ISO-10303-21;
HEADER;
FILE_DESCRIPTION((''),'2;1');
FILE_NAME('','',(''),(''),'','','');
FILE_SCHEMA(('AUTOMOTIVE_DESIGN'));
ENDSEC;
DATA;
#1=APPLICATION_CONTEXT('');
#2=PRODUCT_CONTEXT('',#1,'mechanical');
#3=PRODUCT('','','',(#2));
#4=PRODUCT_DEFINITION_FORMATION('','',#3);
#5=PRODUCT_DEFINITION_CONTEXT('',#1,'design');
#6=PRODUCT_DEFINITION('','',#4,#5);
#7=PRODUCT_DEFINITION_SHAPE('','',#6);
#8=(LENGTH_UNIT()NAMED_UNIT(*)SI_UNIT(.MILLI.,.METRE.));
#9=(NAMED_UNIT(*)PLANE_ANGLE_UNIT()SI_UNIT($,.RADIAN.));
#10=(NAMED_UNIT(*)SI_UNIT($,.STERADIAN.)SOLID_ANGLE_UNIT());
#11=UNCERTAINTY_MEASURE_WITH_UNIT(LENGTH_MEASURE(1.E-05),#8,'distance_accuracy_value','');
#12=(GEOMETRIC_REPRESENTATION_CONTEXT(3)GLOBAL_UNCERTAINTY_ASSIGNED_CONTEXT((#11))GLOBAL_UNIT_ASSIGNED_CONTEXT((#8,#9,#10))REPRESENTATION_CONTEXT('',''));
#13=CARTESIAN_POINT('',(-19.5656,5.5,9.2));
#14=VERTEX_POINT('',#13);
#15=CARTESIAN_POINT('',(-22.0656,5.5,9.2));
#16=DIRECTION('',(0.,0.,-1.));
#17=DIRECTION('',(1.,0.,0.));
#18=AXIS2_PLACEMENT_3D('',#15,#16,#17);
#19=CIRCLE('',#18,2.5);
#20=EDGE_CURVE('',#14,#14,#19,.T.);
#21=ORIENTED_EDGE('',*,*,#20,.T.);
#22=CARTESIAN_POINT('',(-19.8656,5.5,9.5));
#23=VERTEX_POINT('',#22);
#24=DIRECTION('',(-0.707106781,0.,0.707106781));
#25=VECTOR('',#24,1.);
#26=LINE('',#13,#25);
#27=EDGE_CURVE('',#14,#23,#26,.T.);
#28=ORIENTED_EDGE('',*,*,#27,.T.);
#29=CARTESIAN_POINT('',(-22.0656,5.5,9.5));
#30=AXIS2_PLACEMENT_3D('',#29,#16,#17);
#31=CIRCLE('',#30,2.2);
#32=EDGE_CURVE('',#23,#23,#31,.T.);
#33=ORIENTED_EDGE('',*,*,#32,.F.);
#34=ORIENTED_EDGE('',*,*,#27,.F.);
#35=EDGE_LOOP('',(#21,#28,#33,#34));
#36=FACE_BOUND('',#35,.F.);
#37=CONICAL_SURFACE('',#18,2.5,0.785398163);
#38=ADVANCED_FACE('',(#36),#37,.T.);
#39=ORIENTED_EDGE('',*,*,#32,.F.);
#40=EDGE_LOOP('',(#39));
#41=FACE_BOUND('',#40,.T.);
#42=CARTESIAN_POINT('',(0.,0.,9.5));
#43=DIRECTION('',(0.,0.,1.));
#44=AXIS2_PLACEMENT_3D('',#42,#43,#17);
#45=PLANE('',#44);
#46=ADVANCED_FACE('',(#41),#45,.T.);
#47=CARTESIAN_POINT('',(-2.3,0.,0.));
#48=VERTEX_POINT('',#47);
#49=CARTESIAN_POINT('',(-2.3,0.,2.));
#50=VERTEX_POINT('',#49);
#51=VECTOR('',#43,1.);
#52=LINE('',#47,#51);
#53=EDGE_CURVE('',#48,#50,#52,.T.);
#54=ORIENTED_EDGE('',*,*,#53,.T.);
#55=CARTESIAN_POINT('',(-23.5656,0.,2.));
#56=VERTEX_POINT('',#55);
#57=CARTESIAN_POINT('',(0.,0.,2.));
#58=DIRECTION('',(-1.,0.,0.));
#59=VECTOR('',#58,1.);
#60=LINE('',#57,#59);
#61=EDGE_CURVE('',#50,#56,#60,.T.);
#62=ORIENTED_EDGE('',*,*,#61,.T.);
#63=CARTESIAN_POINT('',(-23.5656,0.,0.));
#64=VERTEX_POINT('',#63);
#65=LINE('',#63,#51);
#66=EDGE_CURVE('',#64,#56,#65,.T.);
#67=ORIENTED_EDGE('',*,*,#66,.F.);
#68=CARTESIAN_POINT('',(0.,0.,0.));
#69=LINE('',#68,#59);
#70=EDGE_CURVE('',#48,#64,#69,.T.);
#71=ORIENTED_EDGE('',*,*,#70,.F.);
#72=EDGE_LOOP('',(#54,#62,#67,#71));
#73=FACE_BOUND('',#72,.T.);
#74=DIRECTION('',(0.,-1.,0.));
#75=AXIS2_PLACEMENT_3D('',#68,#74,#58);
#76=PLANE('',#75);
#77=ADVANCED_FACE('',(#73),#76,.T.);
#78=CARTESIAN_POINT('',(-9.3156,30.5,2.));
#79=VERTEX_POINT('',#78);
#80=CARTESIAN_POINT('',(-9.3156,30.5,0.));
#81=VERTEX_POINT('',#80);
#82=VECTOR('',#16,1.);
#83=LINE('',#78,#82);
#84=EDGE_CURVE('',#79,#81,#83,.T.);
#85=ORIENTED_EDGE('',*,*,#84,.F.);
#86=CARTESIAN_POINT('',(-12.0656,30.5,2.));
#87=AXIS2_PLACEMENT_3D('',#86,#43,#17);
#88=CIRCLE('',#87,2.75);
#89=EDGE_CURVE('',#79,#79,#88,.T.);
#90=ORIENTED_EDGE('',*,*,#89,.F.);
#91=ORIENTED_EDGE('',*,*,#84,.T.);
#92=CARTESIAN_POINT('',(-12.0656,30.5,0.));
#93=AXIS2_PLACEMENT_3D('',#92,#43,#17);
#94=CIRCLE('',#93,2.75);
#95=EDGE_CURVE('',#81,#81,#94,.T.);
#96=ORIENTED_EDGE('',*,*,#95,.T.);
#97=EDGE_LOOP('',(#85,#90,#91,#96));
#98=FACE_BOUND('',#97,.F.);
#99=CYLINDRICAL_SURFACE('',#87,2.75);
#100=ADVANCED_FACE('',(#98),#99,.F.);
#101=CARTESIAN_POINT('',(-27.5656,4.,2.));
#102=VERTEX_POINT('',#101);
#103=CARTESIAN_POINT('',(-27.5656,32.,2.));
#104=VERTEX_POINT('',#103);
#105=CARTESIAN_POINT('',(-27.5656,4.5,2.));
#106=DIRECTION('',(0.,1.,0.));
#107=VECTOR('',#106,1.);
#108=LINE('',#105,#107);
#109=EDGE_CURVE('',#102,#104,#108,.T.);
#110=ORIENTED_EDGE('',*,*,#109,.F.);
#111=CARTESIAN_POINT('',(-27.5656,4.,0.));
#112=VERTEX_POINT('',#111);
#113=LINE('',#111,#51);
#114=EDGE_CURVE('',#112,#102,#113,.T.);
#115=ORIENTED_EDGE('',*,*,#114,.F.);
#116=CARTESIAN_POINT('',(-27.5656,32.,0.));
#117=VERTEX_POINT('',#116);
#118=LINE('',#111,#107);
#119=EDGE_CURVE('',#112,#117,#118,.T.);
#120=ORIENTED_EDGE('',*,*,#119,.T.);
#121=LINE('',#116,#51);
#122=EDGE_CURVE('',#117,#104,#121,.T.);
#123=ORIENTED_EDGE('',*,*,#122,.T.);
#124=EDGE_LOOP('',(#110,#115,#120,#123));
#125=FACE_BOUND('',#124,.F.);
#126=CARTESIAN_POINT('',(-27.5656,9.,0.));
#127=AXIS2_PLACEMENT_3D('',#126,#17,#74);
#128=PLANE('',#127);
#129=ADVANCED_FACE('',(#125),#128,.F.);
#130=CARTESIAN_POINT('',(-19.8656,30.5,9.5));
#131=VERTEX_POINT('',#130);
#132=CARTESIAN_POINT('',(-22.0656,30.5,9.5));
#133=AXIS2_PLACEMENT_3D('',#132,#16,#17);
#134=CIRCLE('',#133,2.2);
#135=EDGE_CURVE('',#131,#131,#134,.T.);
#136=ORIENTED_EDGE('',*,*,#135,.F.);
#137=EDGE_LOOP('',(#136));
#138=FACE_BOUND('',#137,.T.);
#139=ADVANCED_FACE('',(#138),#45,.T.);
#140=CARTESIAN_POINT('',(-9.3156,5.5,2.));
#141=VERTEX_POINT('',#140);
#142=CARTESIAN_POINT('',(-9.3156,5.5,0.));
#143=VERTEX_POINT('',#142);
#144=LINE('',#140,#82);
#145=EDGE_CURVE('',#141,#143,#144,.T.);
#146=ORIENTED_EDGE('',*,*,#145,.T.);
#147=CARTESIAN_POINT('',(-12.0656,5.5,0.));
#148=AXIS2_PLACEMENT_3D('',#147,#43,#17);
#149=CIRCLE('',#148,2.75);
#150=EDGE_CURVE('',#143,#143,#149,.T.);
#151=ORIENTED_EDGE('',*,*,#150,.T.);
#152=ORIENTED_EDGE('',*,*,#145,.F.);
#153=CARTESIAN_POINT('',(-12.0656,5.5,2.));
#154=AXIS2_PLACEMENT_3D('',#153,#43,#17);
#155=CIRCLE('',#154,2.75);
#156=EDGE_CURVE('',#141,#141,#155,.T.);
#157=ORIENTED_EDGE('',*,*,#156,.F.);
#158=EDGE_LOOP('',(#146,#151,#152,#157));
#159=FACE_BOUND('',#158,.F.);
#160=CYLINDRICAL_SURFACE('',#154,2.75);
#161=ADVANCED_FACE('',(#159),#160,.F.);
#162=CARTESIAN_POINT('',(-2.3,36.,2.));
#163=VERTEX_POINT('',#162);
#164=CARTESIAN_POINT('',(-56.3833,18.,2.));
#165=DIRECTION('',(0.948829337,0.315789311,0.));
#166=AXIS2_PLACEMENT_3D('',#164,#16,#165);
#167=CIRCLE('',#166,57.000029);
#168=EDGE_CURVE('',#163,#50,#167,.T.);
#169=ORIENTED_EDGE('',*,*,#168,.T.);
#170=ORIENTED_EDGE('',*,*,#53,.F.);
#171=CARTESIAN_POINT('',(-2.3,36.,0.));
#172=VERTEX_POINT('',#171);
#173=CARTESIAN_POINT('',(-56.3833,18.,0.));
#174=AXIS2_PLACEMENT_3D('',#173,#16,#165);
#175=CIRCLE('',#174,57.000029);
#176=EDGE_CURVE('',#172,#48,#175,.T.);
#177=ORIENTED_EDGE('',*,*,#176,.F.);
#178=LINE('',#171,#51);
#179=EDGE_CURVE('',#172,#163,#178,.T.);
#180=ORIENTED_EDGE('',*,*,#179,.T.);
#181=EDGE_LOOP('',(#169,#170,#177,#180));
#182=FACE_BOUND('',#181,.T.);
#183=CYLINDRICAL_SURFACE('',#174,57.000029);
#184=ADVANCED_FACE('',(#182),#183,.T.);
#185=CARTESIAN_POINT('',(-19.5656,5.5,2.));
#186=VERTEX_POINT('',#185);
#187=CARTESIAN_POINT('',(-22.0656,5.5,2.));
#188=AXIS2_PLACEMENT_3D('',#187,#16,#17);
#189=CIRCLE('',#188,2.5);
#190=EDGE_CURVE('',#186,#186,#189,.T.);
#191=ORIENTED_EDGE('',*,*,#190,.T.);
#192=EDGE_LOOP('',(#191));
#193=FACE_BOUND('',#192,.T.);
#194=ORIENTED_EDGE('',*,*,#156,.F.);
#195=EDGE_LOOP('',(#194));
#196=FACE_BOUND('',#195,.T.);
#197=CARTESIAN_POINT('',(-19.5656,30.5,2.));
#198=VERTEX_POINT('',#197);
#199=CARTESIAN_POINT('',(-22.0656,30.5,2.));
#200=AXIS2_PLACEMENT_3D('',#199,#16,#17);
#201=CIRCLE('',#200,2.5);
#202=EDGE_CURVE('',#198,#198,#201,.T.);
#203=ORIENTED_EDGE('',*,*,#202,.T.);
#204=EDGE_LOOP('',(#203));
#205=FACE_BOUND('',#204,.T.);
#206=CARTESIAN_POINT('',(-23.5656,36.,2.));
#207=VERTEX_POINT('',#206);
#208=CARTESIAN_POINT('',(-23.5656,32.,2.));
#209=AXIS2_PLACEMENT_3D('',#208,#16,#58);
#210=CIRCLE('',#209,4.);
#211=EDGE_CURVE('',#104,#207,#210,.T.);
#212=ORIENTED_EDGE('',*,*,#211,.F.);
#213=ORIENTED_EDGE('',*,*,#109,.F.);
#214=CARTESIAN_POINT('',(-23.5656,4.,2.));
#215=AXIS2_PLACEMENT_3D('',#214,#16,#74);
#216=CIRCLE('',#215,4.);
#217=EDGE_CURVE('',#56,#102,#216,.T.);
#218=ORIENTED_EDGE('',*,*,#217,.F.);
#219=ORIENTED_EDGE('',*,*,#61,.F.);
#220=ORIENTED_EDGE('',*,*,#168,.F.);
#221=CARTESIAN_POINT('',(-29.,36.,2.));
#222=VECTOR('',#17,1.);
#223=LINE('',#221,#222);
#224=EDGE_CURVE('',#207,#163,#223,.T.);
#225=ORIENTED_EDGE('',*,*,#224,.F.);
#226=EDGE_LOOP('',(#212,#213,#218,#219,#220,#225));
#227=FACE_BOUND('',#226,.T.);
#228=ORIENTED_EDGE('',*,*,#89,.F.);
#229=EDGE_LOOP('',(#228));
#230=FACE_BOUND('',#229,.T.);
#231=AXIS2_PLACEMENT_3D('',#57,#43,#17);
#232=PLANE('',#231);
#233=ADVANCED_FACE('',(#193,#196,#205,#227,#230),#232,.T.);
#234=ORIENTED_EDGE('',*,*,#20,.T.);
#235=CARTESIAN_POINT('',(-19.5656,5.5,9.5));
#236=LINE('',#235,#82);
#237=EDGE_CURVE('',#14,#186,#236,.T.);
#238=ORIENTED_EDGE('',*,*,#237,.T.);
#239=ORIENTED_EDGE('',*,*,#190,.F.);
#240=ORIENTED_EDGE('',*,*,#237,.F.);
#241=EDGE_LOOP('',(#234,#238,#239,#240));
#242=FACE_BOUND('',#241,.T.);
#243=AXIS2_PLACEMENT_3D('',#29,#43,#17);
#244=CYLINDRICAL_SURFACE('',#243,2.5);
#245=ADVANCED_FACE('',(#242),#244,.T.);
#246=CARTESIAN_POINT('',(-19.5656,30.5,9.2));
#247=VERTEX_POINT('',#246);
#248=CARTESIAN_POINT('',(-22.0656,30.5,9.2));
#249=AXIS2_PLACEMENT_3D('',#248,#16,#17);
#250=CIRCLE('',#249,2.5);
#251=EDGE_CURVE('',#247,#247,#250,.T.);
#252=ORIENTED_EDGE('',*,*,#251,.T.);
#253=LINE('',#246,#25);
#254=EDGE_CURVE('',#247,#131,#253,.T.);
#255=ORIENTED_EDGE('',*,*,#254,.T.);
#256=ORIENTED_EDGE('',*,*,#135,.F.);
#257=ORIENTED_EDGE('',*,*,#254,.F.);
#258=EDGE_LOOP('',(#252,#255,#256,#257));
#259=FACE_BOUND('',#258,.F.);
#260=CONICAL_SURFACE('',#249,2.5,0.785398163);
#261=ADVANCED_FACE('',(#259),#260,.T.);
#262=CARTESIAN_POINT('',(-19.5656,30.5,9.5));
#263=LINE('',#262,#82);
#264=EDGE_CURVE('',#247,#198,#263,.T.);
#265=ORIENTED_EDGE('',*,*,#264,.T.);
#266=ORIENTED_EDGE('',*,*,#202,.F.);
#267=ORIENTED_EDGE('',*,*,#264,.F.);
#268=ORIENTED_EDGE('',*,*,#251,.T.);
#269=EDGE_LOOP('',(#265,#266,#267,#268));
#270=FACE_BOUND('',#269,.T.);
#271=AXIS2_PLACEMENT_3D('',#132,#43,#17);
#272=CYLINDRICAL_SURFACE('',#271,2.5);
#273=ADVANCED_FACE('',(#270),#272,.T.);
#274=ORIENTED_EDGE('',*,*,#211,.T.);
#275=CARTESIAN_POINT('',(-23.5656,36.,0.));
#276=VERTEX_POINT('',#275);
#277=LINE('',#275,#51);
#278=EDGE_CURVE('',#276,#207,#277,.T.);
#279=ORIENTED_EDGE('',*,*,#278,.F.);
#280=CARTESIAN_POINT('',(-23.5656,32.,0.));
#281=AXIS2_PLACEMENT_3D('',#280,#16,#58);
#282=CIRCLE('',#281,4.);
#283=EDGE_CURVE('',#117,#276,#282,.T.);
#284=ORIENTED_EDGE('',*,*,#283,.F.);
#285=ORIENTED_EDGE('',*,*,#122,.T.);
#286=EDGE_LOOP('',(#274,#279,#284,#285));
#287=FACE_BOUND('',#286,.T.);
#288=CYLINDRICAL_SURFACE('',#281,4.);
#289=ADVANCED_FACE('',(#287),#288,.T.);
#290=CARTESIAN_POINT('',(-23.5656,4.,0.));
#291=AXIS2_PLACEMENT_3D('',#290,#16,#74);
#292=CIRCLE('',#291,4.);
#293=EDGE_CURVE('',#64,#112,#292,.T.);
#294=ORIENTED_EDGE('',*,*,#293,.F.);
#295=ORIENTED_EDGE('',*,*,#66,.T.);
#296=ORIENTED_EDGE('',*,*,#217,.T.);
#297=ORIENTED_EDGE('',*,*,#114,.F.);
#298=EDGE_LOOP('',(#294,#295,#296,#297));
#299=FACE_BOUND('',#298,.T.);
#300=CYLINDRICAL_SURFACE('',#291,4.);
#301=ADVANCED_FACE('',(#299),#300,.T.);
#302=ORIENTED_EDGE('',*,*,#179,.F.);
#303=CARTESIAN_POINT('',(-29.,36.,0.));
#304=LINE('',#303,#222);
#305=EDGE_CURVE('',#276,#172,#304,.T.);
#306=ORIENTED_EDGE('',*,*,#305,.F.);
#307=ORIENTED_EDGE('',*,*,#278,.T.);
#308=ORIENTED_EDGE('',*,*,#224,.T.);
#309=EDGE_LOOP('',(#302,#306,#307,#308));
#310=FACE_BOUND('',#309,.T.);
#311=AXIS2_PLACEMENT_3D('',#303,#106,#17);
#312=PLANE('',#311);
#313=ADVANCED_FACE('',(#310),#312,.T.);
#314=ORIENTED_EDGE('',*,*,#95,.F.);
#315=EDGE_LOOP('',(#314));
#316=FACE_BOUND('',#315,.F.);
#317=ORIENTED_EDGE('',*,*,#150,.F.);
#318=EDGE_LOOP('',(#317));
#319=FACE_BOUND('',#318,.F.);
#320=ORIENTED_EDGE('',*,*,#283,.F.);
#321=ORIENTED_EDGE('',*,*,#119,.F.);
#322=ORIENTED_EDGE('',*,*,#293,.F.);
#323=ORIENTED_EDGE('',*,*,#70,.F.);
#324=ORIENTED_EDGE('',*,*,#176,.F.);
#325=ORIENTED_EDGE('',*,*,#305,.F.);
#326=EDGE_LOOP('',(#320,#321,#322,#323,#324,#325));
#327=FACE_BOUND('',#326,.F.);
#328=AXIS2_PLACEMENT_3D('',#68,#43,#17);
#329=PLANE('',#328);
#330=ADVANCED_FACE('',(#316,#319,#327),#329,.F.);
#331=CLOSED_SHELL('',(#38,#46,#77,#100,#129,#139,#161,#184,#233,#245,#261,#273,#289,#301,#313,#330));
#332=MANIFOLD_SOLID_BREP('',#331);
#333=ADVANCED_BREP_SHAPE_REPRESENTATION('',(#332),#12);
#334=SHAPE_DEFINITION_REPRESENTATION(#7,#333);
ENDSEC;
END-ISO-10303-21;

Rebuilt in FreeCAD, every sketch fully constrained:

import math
import FreeCAD as App
import Part
import Sketcher

V = App.Vector


def edges_at(feature, points):
    """Names of the edges that pass closest to the given points."""
    edges = feature.Shape.Edges
    near = lambda p: min(range(len(edges)), key=lambda i: edges[i].distToShape(Part.Vertex(*p))[0])
    return sorted({f"Edge{near(p) + 1}" for p in points})

doc = App.newDocument("Part")
params = doc.addObject("Spreadsheet::Sheet", "Params")
for row, (alias, value) in enumerate([
    ("sketch1_radius", "57 mm"),
    ("sketch1_width", "29 mm"),
    ("sketch1_width2", "5 mm"),
    ("sketch1_height", "36 mm"),
    ("pad1_length", "2 mm"),
    ("sketch2_width", "5 mm"),
    ("pad2_length", "9.5 mm"),
    ("fillet_radius", "4 mm"),
    ("sketch3_radius", "2.5 mm"),
    ("pad3_length", "2 mm"),
    ("sketch4_radius", "2.5 mm"),
    ("pocket1_length", "7.5 mm"),
    ("sketch5_diameter", "5.5 mm"),
    ("sketch5_diameter2", "5 mm"),
    ("chamfer_size", "0.3 mm"),
    ("sketch6_radius", "57 mm"),
    ("sketch6_width", "2.3 mm"),
    ("sketch6_radius2", "4 mm"),
    ("sketch6_height", "28 mm"),
], start=1):
    params.set(f"A{row}", alias)
    params.set(f"B{row}", "=" + value)
    params.setAlias(f"B{row}", alias)

body = doc.addObject("PartDesign::Body", "Body")

sketch1 = body.newObject("Sketcher::SketchObject", "Sketch")
sketch1.AttachmentSupport = (doc.getObject("XY_Plane"), [""])
sketch1.MapMode = "FlatFace"
sketch1.addGeometry([
    Part.LineSegment(V(-29, 0, 0), V(0, 0, 0)),
    Part.ArcOfCircle(Part.Circle(V(-54.0833, 18, 0), V(0, 0, 1), 57.000029), math.radians(-18.40847), math.radians(18.40847)),
    Part.LineSegment(V(0, 36, 0), V(-29, 36, 0)),
    Part.LineSegment(V(-29, 36, 0), V(-29, 0, 0)),
    Part.LineSegment(V(-24.5656, 3, 0), V(-24.5656, 8, 0)),
    Part.LineSegment(V(-24.5656, 8, 0), V(-19.5656, 8, 0)),
    Part.LineSegment(V(-19.5656, 8, 0), V(-19.5656, 3, 0)),
    Part.LineSegment(V(-19.5656, 3, 0), V(-24.5656, 3, 0)),
    Part.LineSegment(V(-24.5656, 28, 0), V(-24.5656, 33, 0)),
    Part.LineSegment(V(-24.5656, 33, 0), V(-19.5656, 33, 0)),
    Part.LineSegment(V(-19.5656, 33, 0), V(-19.5656, 28, 0)),
    Part.LineSegment(V(-19.5656, 28, 0), V(-24.5656, 28, 0)),
    Part.LineSegment(V(-14.5656, 3, 0), V(-14.5656, 8, 0)),
    Part.LineSegment(V(-14.5656, 8, 0), V(-9.5656, 8, 0)),
    Part.LineSegment(V(-9.5656, 8, 0), V(-9.5656, 3, 0)),
    Part.LineSegment(V(-9.5656, 3, 0), V(-14.5656, 3, 0)),
    Part.LineSegment(V(-14.5656, 28, 0), V(-14.5656, 33, 0)),
    Part.LineSegment(V(-14.5656, 33, 0), V(-9.5656, 33, 0)),
    Part.LineSegment(V(-9.5656, 33, 0), V(-9.5656, 28, 0)),
    Part.LineSegment(V(-9.5656, 28, 0), V(-14.5656, 28, 0)),
], False)
sketch1.addConstraint([
    Sketcher.Constraint("Coincident", 0, 2, 1, 1),
    Sketcher.Constraint("Coincident", 1, 2, 2, 1),
    Sketcher.Constraint("Coincident", 2, 2, 3, 1),
    Sketcher.Constraint("Coincident", 3, 2, 0, 1),
    Sketcher.Constraint("Coincident", 4, 2, 5, 1),
    Sketcher.Constraint("Coincident", 5, 2, 6, 1),
    Sketcher.Constraint("Coincident", 6, 2, 7, 1),
    Sketcher.Constraint("Coincident", 7, 2, 4, 1),
    Sketcher.Constraint("Coincident", 8, 2, 9, 1),
    Sketcher.Constraint("Coincident", 9, 2, 10, 1),
    Sketcher.Constraint("Coincident", 10, 2, 11, 1),
    Sketcher.Constraint("Coincident", 11, 2, 8, 1),
    Sketcher.Constraint("Coincident", 12, 2, 13, 1),
    Sketcher.Constraint("Coincident", 13, 2, 14, 1),
    Sketcher.Constraint("Coincident", 14, 2, 15, 1),
    Sketcher.Constraint("Coincident", 15, 2, 12, 1),
    Sketcher.Constraint("Coincident", 16, 2, 17, 1),
    Sketcher.Constraint("Coincident", 17, 2, 18, 1),
    Sketcher.Constraint("Coincident", 18, 2, 19, 1),
    Sketcher.Constraint("Coincident", 19, 2, 16, 1),
    Sketcher.Constraint("Horizontal", 0),
    Sketcher.Constraint("Horizontal", 2),
    Sketcher.Constraint("Vertical", 3),
    Sketcher.Constraint("Vertical", 4),
    Sketcher.Constraint("Horizontal", 5),
    Sketcher.Constraint("Vertical", 6),
    Sketcher.Constraint("Horizontal", 7),
    Sketcher.Constraint("Vertical", 8),
    Sketcher.Constraint("Horizontal", 9),
    Sketcher.Constraint("Vertical", 10),
    Sketcher.Constraint("Horizontal", 11),
    Sketcher.Constraint("Vertical", 12),
    Sketcher.Constraint("Horizontal", 13),
    Sketcher.Constraint("Vertical", 14),
    Sketcher.Constraint("Horizontal", 15),
    Sketcher.Constraint("Vertical", 16),
    Sketcher.Constraint("Horizontal", 17),
    Sketcher.Constraint("Vertical", 18),
    Sketcher.Constraint("Horizontal", 19),
    Sketcher.Constraint("Coincident", 0, 2, -1, 1),
    Sketcher.Constraint("PointOnObject", 1, 2, -2),
    Sketcher.Constraint("Horizontal", 5, 2, 12, 2),
    Sketcher.Constraint("Horizontal", 7, 2, 14, 2),
    Sketcher.Constraint("Horizontal", 9, 2, 16, 2),
    Sketcher.Constraint("Horizontal", 11, 2, 18, 2),
    Sketcher.Constraint("Vertical", 7, 2, 8, 2),
    Sketcher.Constraint("Vertical", 6, 2, 9, 2),
    Sketcher.Constraint("Vertical", 15, 2, 16, 2),
    Sketcher.Constraint("Vertical", 14, 2, 17, 2),
    Sketcher.Constraint("Equal", 11, 13),
    Sketcher.Constraint("Equal", 19, 4),
    Sketcher.Constraint("Equal", 6, 8),
    Sketcher.Constraint("Radius", 1, 57.0),
    Sketcher.Constraint("DistanceX", 0, 1, 0, 2, 29.0),
    Sketcher.Constraint("DistanceX", 5, 1, 5, 2, 5.0),
    Sketcher.Constraint("DistanceY", 3, 2, 3, 1, 36.0),
    Sketcher.Constraint("DistanceY", -1, 1, 6, 2, 3.0),
    Sketcher.Constraint("DistanceY", 8, 2, 2, 2, 3.0),
    Sketcher.Constraint("DistanceX", 5, 2, 12, 2, 5.0),
    Sketcher.Constraint("DistanceX", 4, 2, -1, 1, 24.5656),
])
sketch1.setExpression("Constraints[52]", "Params.sketch1_radius")
sketch1.setExpression("Constraints[53]", "Params.sketch1_width")
sketch1.setExpression("Constraints[54]", "Params.sketch1_width2")
sketch1.setExpression("Constraints[55]", "Params.sketch1_height")
pad1 = body.newObject("PartDesign::Pad", "Pad")
pad1.Profile = sketch1
pad1.setExpression("Length", "Params.pad1_length")

sketch2 = body.newObject("Sketcher::SketchObject", "Sketch001")
sketch2.AttachmentSupport = (doc.getObject("XY_Plane"), [""])
sketch2.MapMode = "FlatFace"
sketch2.addGeometry([
    Part.LineSegment(V(-19.5656, 33, 0), V(-24.5656, 33, 0)),
    Part.LineSegment(V(-24.5656, 33, 0), V(-24.5656, 28, 0)),
    Part.LineSegment(V(-24.5656, 28, 0), V(-19.5656, 28, 0)),
    Part.LineSegment(V(-19.5656, 28, 0), V(-19.5656, 33, 0)),
    Part.LineSegment(V(-19.5656, 8, 0), V(-24.5656, 8, 0)),
    Part.LineSegment(V(-24.5656, 8, 0), V(-24.5656, 3, 0)),
    Part.LineSegment(V(-24.5656, 3, 0), V(-19.5656, 3, 0)),
    Part.LineSegment(V(-19.5656, 3, 0), V(-19.5656, 8, 0)),
], False)
sketch2.addConstraint([
    Sketcher.Constraint("Coincident", 0, 2, 1, 1),
    Sketcher.Constraint("Coincident", 1, 2, 2, 1),
    Sketcher.Constraint("Coincident", 2, 2, 3, 1),
    Sketcher.Constraint("Coincident", 3, 2, 0, 1),
    Sketcher.Constraint("Coincident", 4, 2, 5, 1),
    Sketcher.Constraint("Coincident", 5, 2, 6, 1),
    Sketcher.Constraint("Coincident", 6, 2, 7, 1),
    Sketcher.Constraint("Coincident", 7, 2, 4, 1),
    Sketcher.Constraint("Horizontal", 0),
    Sketcher.Constraint("Vertical", 1),
    Sketcher.Constraint("Horizontal", 2),
    Sketcher.Constraint("Vertical", 3),
    Sketcher.Constraint("Horizontal", 4),
    Sketcher.Constraint("Vertical", 5),
    Sketcher.Constraint("Horizontal", 6),
    Sketcher.Constraint("Vertical", 7),
    Sketcher.Constraint("Vertical", 1, 2, 4, 2),
    Sketcher.Constraint("Vertical", 3, 2, 6, 2),
    Sketcher.Constraint("Equal", 6, 1),
    Sketcher.Constraint("Equal", 3, 5),
    Sketcher.Constraint("DistanceX", 0, 2, 0, 1, 5.0),
    Sketcher.Constraint("DistanceY", -1, 1, 5, 2, 3.0),
    Sketcher.Constraint("DistanceY", 4, 2, 1, 2, 20.0),
    Sketcher.Constraint("DistanceX", 0, 2, -1, 1, 24.5656),
])
sketch2.setExpression("Constraints[20]", "Params.sketch2_width")
pad2 = body.newObject("PartDesign::Pad", "Pad001")
pad2.Profile = sketch2
pad2.setExpression("Length", "Params.pad2_length")
doc.recompute()

fillet = body.newObject("PartDesign::Fillet", "Fillet")
fillet.Base = (pad2, edges_at(pad2, [(-29, 0, 1), (-29, 36, 1)]))
fillet.setExpression("Radius", "Params.fillet_radius")

sketch3 = body.newObject("Sketcher::SketchObject", "Sketch002")
sketch3.AttachmentSupport = (doc.getObject("XY_Plane"), [""])
sketch3.MapMode = "FlatFace"
sketch3.AttachmentOffset = App.Placement(V(0, 0, 2), App.Rotation())
sketch3.addGeometry([
    Part.LineSegment(V(-9.5656, 5.5, 0), V(-9.5656, 8, 0)),
    Part.LineSegment(V(-9.5656, 8, 0), V(-12.0656, 8, 0)),
    Part.ArcOfCircle(Part.Circle(V(-12.0656, 5.5, 0), V(0, 0, 1), 2.5), math.radians(0), math.radians(90)),
    Part.LineSegment(V(-9.5656, 3, 0), V(-9.5656, 5.5, 0)),
    Part.ArcOfCircle(Part.Circle(V(-12.0656, 5.5, 0), V(0, 0, 1), 2.5), math.radians(-90), math.radians(0)),
    Part.LineSegment(V(-12.0656, 3, 0), V(-9.5656, 3, 0)),
    Part.ArcOfCircle(Part.Circle(V(-12.0656, 5.5, 0), V(0, 0, 1), 2.5), math.radians(90), math.radians(180)),
    Part.LineSegment(V(-12.0656, 8, 0), V(-14.5656, 8, 0)),
    Part.LineSegment(V(-14.5656, 8, 0), V(-14.5656, 5.5, 0)),
    Part.LineSegment(V(-14.5656, 3, 0), V(-12.0656, 3, 0)),
    Part.ArcOfCircle(Part.Circle(V(-12.0656, 5.5, 0), V(0, 0, 1), 2.5), math.radians(180), math.radians(270)),
    Part.LineSegment(V(-14.5656, 5.5, 0), V(-14.5656, 3, 0)),
    Part.LineSegment(V(-9.5656, 30.5, 0), V(-9.5656, 33, 0)),
    Part.LineSegment(V(-9.5656, 33, 0), V(-12.0656, 33, 0)),
    Part.ArcOfCircle(Part.Circle(V(-12.0656, 30.5, 0), V(0, 0, 1), 2.5), math.radians(0), math.radians(90)),
    Part.LineSegment(V(-9.5656, 28, 0), V(-9.5656, 30.5, 0)),
    Part.ArcOfCircle(Part.Circle(V(-12.0656, 30.5, 0), V(0, 0, 1), 2.5), math.radians(-90), math.radians(0)),
    Part.LineSegment(V(-12.0656, 28, 0), V(-9.5656, 28, 0)),
    Part.ArcOfCircle(Part.Circle(V(-12.0656, 30.5, 0), V(0, 0, 1), 2.5), math.radians(90), math.radians(180)),
    Part.LineSegment(V(-12.0656, 33, 0), V(-14.5656, 33, 0)),
    Part.LineSegment(V(-14.5656, 33, 0), V(-14.5656, 30.5, 0)),
    Part.LineSegment(V(-14.5656, 28, 0), V(-12.0656, 28, 0)),
    Part.ArcOfCircle(Part.Circle(V(-12.0656, 30.5, 0), V(0, 0, 1), 2.5), math.radians(180), math.radians(270)),
    Part.LineSegment(V(-14.5656, 30.5, 0), V(-14.5656, 28, 0)),
], False)
sketch3.addConstraint([
    Sketcher.Constraint("Coincident", 0, 2, 1, 1),
    Sketcher.Constraint("Tangent", 1, 2, 2, 2),
    Sketcher.Constraint("Tangent", 2, 1, 0, 1),
    Sketcher.Constraint("Tangent", 3, 2, 4, 2),
    Sketcher.Constraint("Tangent", 4, 1, 5, 1),
    Sketcher.Constraint("Coincident", 5, 2, 3, 1),
    Sketcher.Constraint("Tangent", 6, 1, 7, 1),
    Sketcher.Constraint("Coincident", 7, 2, 8, 1),
    Sketcher.Constraint("Tangent", 8, 2, 6, 2),
    Sketcher.Constraint("Tangent", 9, 2, 10, 2),
    Sketcher.Constraint("Tangent", 10, 1, 11, 1),
    Sketcher.Constraint("Coincident", 11, 2, 9, 1),
    Sketcher.Constraint("Coincident", 12, 2, 13, 1),
    Sketcher.Constraint("Tangent", 13, 2, 14, 2),
    Sketcher.Constraint("Tangent", 14, 1, 12, 1),
    Sketcher.Constraint("Tangent", 15, 2, 16, 2),
    Sketcher.Constraint("Tangent", 16, 1, 17, 1),
    Sketcher.Constraint("Coincident", 17, 2, 15, 1),
    Sketcher.Constraint("Tangent", 18, 1, 19, 1),
    Sketcher.Constraint("Coincident", 19, 2, 20, 1),
    Sketcher.Constraint("Tangent", 20, 2, 18, 2),
    Sketcher.Constraint("Tangent", 21, 2, 22, 2),
    Sketcher.Constraint("Tangent", 22, 1, 23, 1),
    Sketcher.Constraint("Coincident", 23, 2, 21, 1),
    Sketcher.Constraint("Vertical", 0),
    Sketcher.Constraint("Horizontal", 1),
    Sketcher.Constraint("Vertical", 3),
    Sketcher.Constraint("Horizontal", 5),
    Sketcher.Constraint("Horizontal", 7),
    Sketcher.Constraint("Vertical", 8),
    Sketcher.Constraint("Horizontal", 9),
    Sketcher.Constraint("Vertical", 11),
    Sketcher.Constraint("Vertical", 12),
    Sketcher.Constraint("Horizontal", 13),
    Sketcher.Constraint("Vertical", 15),
    Sketcher.Constraint("Horizontal", 17),
    Sketcher.Constraint("Horizontal", 19),
    Sketcher.Constraint("Vertical", 20),
    Sketcher.Constraint("Horizontal", 21),
    Sketcher.Constraint("Vertical", 23),
    Sketcher.Constraint("Coincident", 4, 3, 2, 3),
    Sketcher.Constraint("Coincident", 6, 3, 2, 3),
    Sketcher.Constraint("Coincident", 10, 3, 2, 3),
    Sketcher.Constraint("Coincident", 16, 3, 14, 3),
    Sketcher.Constraint("Coincident", 18, 3, 14, 3),
    Sketcher.Constraint("Coincident", 22, 3, 14, 3),
    Sketcher.Constraint("Equal", 2, 4),
    Sketcher.Constraint("Equal", 4, 6),
    Sketcher.Constraint("Equal", 6, 10),
    Sketcher.Constraint("Equal", 10, 14),
    Sketcher.Constraint("Equal", 14, 16),
    Sketcher.Constraint("Equal", 16, 18),
    Sketcher.Constraint("Equal", 18, 22),
    Sketcher.Constraint("Vertical", 10, 3, 14, 3),
    Sketcher.Constraint("Radius", 2, 2.5),
    Sketcher.Constraint("DistanceY", -1, 1, 0, 2, 8.0),
    Sketcher.Constraint("DistanceY", -1, 1, 12, 2, 33.0),
    Sketcher.Constraint("DistanceX", 2, 3, -1, 1, 12.0656),
])
sketch3.setExpression("Constraints[54]", "Params.sketch3_radius")
pad3 = body.newObject("PartDesign::Pad", "Pad002")
pad3.Profile = sketch3
pad3.setExpression("Length", "Params.pad3_length")
pad3.Reversed = True

sketch4 = body.newObject("Sketcher::SketchObject", "Sketch003")
sketch4.AttachmentSupport = (doc.getObject("XY_Plane"), [""])
sketch4.MapMode = "FlatFace"
sketch4.AttachmentOffset = App.Placement(V(0, 0, 9.5), App.Rotation())
sketch4.addGeometry([
    Part.LineSegment(V(-19.5656, 5.5, 0), V(-19.5656, 8, 0)),
    Part.LineSegment(V(-19.5656, 8, 0), V(-22.0656, 8, 0)),
    Part.ArcOfCircle(Part.Circle(V(-22.0656, 5.5, 0), V(0, 0, 1), 2.5), math.radians(0), math.radians(90)),
    Part.LineSegment(V(-19.5656, 3, 0), V(-19.5656, 5.5, 0)),
    Part.ArcOfCircle(Part.Circle(V(-22.0656, 5.5, 0), V(0, 0, 1), 2.5), math.radians(-90), math.radians(0)),
    Part.LineSegment(V(-22.0656, 3, 0), V(-19.5656, 3, 0)),
    Part.ArcOfCircle(Part.Circle(V(-22.0656, 5.5, 0), V(0, 0, 1), 2.5), math.radians(90), math.radians(180)),
    Part.LineSegment(V(-22.0656, 8, 0), V(-24.5656, 8, 0)),
    Part.LineSegment(V(-24.5656, 8, 0), V(-24.5656, 5.5, 0)),
    Part.LineSegment(V(-24.5656, 3, 0), V(-22.0656, 3, 0)),
    Part.ArcOfCircle(Part.Circle(V(-22.0656, 5.5, 0), V(0, 0, 1), 2.5), math.radians(180), math.radians(270)),
    Part.LineSegment(V(-24.5656, 5.5, 0), V(-24.5656, 3, 0)),
    Part.LineSegment(V(-19.5656, 30.5, 0), V(-19.5656, 33, 0)),
    Part.LineSegment(V(-19.5656, 33, 0), V(-22.0656, 33, 0)),
    Part.ArcOfCircle(Part.Circle(V(-22.0656, 30.5, 0), V(0, 0, 1), 2.5), math.radians(0), math.radians(90)),
    Part.LineSegment(V(-19.5656, 28, 0), V(-19.5656, 30.5, 0)),
    Part.ArcOfCircle(Part.Circle(V(-22.0656, 30.5, 0), V(0, 0, 1), 2.5), math.radians(-90), math.radians(0)),
    Part.LineSegment(V(-22.0656, 28, 0), V(-19.5656, 28, 0)),
    Part.ArcOfCircle(Part.Circle(V(-22.0656, 30.5, 0), V(0, 0, 1), 2.5), math.radians(90), math.radians(180)),
    Part.LineSegment(V(-22.0656, 33, 0), V(-24.5656, 33, 0)),
    Part.LineSegment(V(-24.5656, 33, 0), V(-24.5656, 30.5, 0)),
    Part.LineSegment(V(-24.5656, 28, 0), V(-22.0656, 28, 0)),
    Part.ArcOfCircle(Part.Circle(V(-22.0656, 30.5, 0), V(0, 0, 1), 2.5), math.radians(180), math.radians(270)),
    Part.LineSegment(V(-24.5656, 30.5, 0), V(-24.5656, 28, 0)),
], False)
sketch4.addConstraint([
    Sketcher.Constraint("Coincident", 0, 2, 1, 1),
    Sketcher.Constraint("Tangent", 1, 2, 2, 2),
    Sketcher.Constraint("Tangent", 2, 1, 0, 1),
    Sketcher.Constraint("Tangent", 3, 2, 4, 2),
    Sketcher.Constraint("Tangent", 4, 1, 5, 1),
    Sketcher.Constraint("Coincident", 5, 2, 3, 1),
    Sketcher.Constraint("Tangent", 6, 1, 7, 1),
    Sketcher.Constraint("Coincident", 7, 2, 8, 1),
    Sketcher.Constraint("Tangent", 8, 2, 6, 2),
    Sketcher.Constraint("Tangent", 9, 2, 10, 2),
    Sketcher.Constraint("Tangent", 10, 1, 11, 1),
    Sketcher.Constraint("Coincident", 11, 2, 9, 1),
    Sketcher.Constraint("Coincident", 12, 2, 13, 1),
    Sketcher.Constraint("Tangent", 13, 2, 14, 2),
    Sketcher.Constraint("Tangent", 14, 1, 12, 1),
    Sketcher.Constraint("Tangent", 15, 2, 16, 2),
    Sketcher.Constraint("Tangent", 16, 1, 17, 1),
    Sketcher.Constraint("Coincident", 17, 2, 15, 1),
    Sketcher.Constraint("Tangent", 18, 1, 19, 1),
    Sketcher.Constraint("Coincident", 19, 2, 20, 1),
    Sketcher.Constraint("Tangent", 20, 2, 18, 2),
    Sketcher.Constraint("Tangent", 21, 2, 22, 2),
    Sketcher.Constraint("Tangent", 22, 1, 23, 1),
    Sketcher.Constraint("Coincident", 23, 2, 21, 1),
    Sketcher.Constraint("Vertical", 0),
    Sketcher.Constraint("Horizontal", 1),
    Sketcher.Constraint("Vertical", 3),
    Sketcher.Constraint("Horizontal", 5),
    Sketcher.Constraint("Horizontal", 7),
    Sketcher.Constraint("Vertical", 8),
    Sketcher.Constraint("Horizontal", 9),
    Sketcher.Constraint("Vertical", 11),
    Sketcher.Constraint("Vertical", 12),
    Sketcher.Constraint("Horizontal", 13),
    Sketcher.Constraint("Vertical", 15),
    Sketcher.Constraint("Horizontal", 17),
    Sketcher.Constraint("Horizontal", 19),
    Sketcher.Constraint("Vertical", 20),
    Sketcher.Constraint("Horizontal", 21),
    Sketcher.Constraint("Vertical", 23),
    Sketcher.Constraint("Coincident", 4, 3, 2, 3),
    Sketcher.Constraint("Coincident", 6, 3, 2, 3),
    Sketcher.Constraint("Coincident", 10, 3, 2, 3),
    Sketcher.Constraint("Coincident", 16, 3, 14, 3),
    Sketcher.Constraint("Coincident", 18, 3, 14, 3),
    Sketcher.Constraint("Coincident", 22, 3, 14, 3),
    Sketcher.Constraint("Equal", 2, 4),
    Sketcher.Constraint("Equal", 4, 6),
    Sketcher.Constraint("Equal", 6, 10),
    Sketcher.Constraint("Equal", 10, 14),
    Sketcher.Constraint("Equal", 14, 16),
    Sketcher.Constraint("Equal", 16, 18),
    Sketcher.Constraint("Equal", 18, 22),
    Sketcher.Constraint("Vertical", 10, 3, 14, 3),
    Sketcher.Constraint("Radius", 2, 2.5),
    Sketcher.Constraint("DistanceY", -1, 1, 0, 2, 8.0),
    Sketcher.Constraint("DistanceY", -1, 1, 12, 2, 33.0),
    Sketcher.Constraint("DistanceX", 2, 3, -1, 1, 22.0656),
])
sketch4.setExpression("Constraints[54]", "Params.sketch4_radius")
pocket1 = body.newObject("PartDesign::Pocket", "Pocket")
pocket1.Profile = sketch4
pocket1.setExpression("Length", "Params.pocket1_length")

sketch5 = body.newObject("Sketcher::SketchObject", "Sketch004")
sketch5.AttachmentSupport = (doc.getObject("XY_Plane"), [""])
sketch5.MapMode = "FlatFace"
sketch5.AttachmentOffset = App.Placement(V(0, 0, 2), App.Rotation())
sketch5.addGeometry([
    Part.Circle(V(-12.0656, 30.5, 0), V(0, 0, 1), 2.75),
    Part.Circle(V(-12.0656, 30.5, 0), V(0, 0, 1), 2.5),
    Part.Circle(V(-12.0656, 5.5, 0), V(0, 0, 1), 2.75),
    Part.Circle(V(-12.0656, 5.5, 0), V(0, 0, 1), 2.5),
], False)
sketch5.addConstraint([
    Sketcher.Constraint("Coincident", 1, 3, 0, 3),
    Sketcher.Constraint("Coincident", 3, 3, 2, 3),
    Sketcher.Constraint("Equal", 0, 2),
    Sketcher.Constraint("Equal", 1, 3),
    Sketcher.Constraint("Vertical", 1, 3, 2, 3),
    Sketcher.Constraint("Diameter", 0, 5.5),
    Sketcher.Constraint("Diameter", 1, 5.0),
    Sketcher.Constraint("DistanceY", -1, 1, 2, 3, 5.5),
    Sketcher.Constraint("DistanceY", 2, 3, 0, 3, 25.0),
    Sketcher.Constraint("DistanceX", 0, 3, -1, 1, 12.0656),
])
sketch5.setExpression("Constraints[5]", "Params.sketch5_diameter")
sketch5.setExpression("Constraints[6]", "Params.sketch5_diameter2")
pocket2 = body.newObject("PartDesign::Pocket", "Pocket001")
pocket2.Profile = sketch5
pocket2.Type = "ThroughAll"
doc.recompute()

chamfer = body.newObject("PartDesign::Chamfer", "Chamfer")
chamfer.Base = (pocket2, edges_at(pocket2, [(-24.566, 5.5, 9.5), (-24.566, 30.5, 9.5)]))
chamfer.setExpression("Size", "Params.chamfer_size")

sketch6 = body.newObject("Sketcher::SketchObject", "Sketch005")
sketch6.AttachmentSupport = (doc.getObject("XY_Plane"), [""])
sketch6.MapMode = "FlatFace"
sketch6.addGeometry([
    Part.LineSegment(V(-23.5656, 0, 0), V(-25, 0, 0)),
    Part.ArcOfCircle(Part.Circle(V(-25, 4, 0), V(0, 0, 1), 4), math.radians(180), math.radians(270)),
    Part.LineSegment(V(-29, 4, 0), V(-29, 32, 0)),
    Part.ArcOfCircle(Part.Circle(V(-25, 32, 0), V(0, 0, 1), 4), math.radians(90), math.radians(180)),
    Part.LineSegment(V(-25, 36, 0), V(-23.5656, 36, 0)),
    Part.ArcOfCircle(Part.Circle(V(-23.5656, 32, 0), V(0, 0, 1), 4), math.radians(90), math.radians(180)),
    Part.LineSegment(V(-27.5656, 32, 0), V(-27.5656, 4, 0)),
    Part.ArcOfCircle(Part.Circle(V(-23.5656, 4, 0), V(0, 0, 1), 4), math.radians(180), math.radians(270)),
    Part.LineSegment(V(0, 0, 0), V(-2.3, 0, 0)),
    Part.ArcOfCircle(Part.Circle(V(-56.3833, 18, 0), V(0, 0, 1), 57.000029), math.radians(-18.40847), math.radians(18.40847)),
    Part.LineSegment(V(-2.3, 36, 0), V(0, 36, 0)),
    Part.ArcOfCircle(Part.Circle(V(-54.0833, 18, 0), V(0, 0, 1), 57.000029), math.radians(-18.40847), math.radians(18.40847)),
], False)
sketch6.addConstraint([
    Sketcher.Constraint("Tangent", 0, 2, 1, 2),
    Sketcher.Constraint("Tangent", 1, 1, 2, 1),
    Sketcher.Constraint("Tangent", 2, 2, 3, 2),
    Sketcher.Constraint("Tangent", 3, 1, 4, 1),
    Sketcher.Constraint("Tangent", 4, 2, 5, 1),
    Sketcher.Constraint("Tangent", 5, 2, 6, 1),
    Sketcher.Constraint("Tangent", 6, 2, 7, 1),
    Sketcher.Constraint("Tangent", 7, 2, 0, 1),
    Sketcher.Constraint("Coincident", 8, 2, 9, 1),
    Sketcher.Constraint("Coincident", 9, 2, 10, 1),
    Sketcher.Constraint("Coincident", 10, 2, 11, 2),
    Sketcher.Constraint("Coincident", 11, 1, 8, 1),
    Sketcher.Constraint("Horizontal", 0),
    Sketcher.Constraint("Vertical", 2),
    Sketcher.Constraint("Horizontal", 4),
    Sketcher.Constraint("Vertical", 6),
    Sketcher.Constraint("Horizontal", 8),
    Sketcher.Constraint("Horizontal", 10),
    Sketcher.Constraint("Coincident", 11, 1, -1, 1),
    Sketcher.Constraint("Equal", 1, 3),
    Sketcher.Constraint("Equal", 3, 5),
    Sketcher.Constraint("Equal", 5, 7),
    Sketcher.Constraint("Equal", 9, 11),
    Sketcher.Constraint("PointOnObject", 0, 2, -1),
    Sketcher.Constraint("PointOnObject", 10, 2, -2),
    Sketcher.Constraint("Horizontal", 9, 3, 11, 3),
    Sketcher.Constraint("Horizontal", 4, 2, 9, 2),
    Sketcher.Constraint("Radius", 9, 57.0),
    Sketcher.Constraint("DistanceX", 8, 2, 8, 1, 2.3),
    Sketcher.Constraint("Radius", 1, 4.0),
    Sketcher.Constraint("DistanceY", 2, 1, 2, 2, 28.0),
    Sketcher.Constraint("DistanceX", 1, 3, -1, 1, 25.0),
    Sketcher.Constraint("DistanceX", 0, 2, 0, 1, 1.4344),
])
sketch6.setExpression("Constraints[27]", "Params.sketch6_radius")
sketch6.setExpression("Constraints[28]", "Params.sketch6_width")
sketch6.setExpression("Constraints[29]", "Params.sketch6_radius2")
sketch6.setExpression("Constraints[30]", "Params.sketch6_height")
pocket3 = body.newObject("PartDesign::Pocket", "Pocket002")
pocket3.Profile = sketch6
pocket3.Type = "ThroughAll"
pocket3.Reversed = True

doc.recompute()
